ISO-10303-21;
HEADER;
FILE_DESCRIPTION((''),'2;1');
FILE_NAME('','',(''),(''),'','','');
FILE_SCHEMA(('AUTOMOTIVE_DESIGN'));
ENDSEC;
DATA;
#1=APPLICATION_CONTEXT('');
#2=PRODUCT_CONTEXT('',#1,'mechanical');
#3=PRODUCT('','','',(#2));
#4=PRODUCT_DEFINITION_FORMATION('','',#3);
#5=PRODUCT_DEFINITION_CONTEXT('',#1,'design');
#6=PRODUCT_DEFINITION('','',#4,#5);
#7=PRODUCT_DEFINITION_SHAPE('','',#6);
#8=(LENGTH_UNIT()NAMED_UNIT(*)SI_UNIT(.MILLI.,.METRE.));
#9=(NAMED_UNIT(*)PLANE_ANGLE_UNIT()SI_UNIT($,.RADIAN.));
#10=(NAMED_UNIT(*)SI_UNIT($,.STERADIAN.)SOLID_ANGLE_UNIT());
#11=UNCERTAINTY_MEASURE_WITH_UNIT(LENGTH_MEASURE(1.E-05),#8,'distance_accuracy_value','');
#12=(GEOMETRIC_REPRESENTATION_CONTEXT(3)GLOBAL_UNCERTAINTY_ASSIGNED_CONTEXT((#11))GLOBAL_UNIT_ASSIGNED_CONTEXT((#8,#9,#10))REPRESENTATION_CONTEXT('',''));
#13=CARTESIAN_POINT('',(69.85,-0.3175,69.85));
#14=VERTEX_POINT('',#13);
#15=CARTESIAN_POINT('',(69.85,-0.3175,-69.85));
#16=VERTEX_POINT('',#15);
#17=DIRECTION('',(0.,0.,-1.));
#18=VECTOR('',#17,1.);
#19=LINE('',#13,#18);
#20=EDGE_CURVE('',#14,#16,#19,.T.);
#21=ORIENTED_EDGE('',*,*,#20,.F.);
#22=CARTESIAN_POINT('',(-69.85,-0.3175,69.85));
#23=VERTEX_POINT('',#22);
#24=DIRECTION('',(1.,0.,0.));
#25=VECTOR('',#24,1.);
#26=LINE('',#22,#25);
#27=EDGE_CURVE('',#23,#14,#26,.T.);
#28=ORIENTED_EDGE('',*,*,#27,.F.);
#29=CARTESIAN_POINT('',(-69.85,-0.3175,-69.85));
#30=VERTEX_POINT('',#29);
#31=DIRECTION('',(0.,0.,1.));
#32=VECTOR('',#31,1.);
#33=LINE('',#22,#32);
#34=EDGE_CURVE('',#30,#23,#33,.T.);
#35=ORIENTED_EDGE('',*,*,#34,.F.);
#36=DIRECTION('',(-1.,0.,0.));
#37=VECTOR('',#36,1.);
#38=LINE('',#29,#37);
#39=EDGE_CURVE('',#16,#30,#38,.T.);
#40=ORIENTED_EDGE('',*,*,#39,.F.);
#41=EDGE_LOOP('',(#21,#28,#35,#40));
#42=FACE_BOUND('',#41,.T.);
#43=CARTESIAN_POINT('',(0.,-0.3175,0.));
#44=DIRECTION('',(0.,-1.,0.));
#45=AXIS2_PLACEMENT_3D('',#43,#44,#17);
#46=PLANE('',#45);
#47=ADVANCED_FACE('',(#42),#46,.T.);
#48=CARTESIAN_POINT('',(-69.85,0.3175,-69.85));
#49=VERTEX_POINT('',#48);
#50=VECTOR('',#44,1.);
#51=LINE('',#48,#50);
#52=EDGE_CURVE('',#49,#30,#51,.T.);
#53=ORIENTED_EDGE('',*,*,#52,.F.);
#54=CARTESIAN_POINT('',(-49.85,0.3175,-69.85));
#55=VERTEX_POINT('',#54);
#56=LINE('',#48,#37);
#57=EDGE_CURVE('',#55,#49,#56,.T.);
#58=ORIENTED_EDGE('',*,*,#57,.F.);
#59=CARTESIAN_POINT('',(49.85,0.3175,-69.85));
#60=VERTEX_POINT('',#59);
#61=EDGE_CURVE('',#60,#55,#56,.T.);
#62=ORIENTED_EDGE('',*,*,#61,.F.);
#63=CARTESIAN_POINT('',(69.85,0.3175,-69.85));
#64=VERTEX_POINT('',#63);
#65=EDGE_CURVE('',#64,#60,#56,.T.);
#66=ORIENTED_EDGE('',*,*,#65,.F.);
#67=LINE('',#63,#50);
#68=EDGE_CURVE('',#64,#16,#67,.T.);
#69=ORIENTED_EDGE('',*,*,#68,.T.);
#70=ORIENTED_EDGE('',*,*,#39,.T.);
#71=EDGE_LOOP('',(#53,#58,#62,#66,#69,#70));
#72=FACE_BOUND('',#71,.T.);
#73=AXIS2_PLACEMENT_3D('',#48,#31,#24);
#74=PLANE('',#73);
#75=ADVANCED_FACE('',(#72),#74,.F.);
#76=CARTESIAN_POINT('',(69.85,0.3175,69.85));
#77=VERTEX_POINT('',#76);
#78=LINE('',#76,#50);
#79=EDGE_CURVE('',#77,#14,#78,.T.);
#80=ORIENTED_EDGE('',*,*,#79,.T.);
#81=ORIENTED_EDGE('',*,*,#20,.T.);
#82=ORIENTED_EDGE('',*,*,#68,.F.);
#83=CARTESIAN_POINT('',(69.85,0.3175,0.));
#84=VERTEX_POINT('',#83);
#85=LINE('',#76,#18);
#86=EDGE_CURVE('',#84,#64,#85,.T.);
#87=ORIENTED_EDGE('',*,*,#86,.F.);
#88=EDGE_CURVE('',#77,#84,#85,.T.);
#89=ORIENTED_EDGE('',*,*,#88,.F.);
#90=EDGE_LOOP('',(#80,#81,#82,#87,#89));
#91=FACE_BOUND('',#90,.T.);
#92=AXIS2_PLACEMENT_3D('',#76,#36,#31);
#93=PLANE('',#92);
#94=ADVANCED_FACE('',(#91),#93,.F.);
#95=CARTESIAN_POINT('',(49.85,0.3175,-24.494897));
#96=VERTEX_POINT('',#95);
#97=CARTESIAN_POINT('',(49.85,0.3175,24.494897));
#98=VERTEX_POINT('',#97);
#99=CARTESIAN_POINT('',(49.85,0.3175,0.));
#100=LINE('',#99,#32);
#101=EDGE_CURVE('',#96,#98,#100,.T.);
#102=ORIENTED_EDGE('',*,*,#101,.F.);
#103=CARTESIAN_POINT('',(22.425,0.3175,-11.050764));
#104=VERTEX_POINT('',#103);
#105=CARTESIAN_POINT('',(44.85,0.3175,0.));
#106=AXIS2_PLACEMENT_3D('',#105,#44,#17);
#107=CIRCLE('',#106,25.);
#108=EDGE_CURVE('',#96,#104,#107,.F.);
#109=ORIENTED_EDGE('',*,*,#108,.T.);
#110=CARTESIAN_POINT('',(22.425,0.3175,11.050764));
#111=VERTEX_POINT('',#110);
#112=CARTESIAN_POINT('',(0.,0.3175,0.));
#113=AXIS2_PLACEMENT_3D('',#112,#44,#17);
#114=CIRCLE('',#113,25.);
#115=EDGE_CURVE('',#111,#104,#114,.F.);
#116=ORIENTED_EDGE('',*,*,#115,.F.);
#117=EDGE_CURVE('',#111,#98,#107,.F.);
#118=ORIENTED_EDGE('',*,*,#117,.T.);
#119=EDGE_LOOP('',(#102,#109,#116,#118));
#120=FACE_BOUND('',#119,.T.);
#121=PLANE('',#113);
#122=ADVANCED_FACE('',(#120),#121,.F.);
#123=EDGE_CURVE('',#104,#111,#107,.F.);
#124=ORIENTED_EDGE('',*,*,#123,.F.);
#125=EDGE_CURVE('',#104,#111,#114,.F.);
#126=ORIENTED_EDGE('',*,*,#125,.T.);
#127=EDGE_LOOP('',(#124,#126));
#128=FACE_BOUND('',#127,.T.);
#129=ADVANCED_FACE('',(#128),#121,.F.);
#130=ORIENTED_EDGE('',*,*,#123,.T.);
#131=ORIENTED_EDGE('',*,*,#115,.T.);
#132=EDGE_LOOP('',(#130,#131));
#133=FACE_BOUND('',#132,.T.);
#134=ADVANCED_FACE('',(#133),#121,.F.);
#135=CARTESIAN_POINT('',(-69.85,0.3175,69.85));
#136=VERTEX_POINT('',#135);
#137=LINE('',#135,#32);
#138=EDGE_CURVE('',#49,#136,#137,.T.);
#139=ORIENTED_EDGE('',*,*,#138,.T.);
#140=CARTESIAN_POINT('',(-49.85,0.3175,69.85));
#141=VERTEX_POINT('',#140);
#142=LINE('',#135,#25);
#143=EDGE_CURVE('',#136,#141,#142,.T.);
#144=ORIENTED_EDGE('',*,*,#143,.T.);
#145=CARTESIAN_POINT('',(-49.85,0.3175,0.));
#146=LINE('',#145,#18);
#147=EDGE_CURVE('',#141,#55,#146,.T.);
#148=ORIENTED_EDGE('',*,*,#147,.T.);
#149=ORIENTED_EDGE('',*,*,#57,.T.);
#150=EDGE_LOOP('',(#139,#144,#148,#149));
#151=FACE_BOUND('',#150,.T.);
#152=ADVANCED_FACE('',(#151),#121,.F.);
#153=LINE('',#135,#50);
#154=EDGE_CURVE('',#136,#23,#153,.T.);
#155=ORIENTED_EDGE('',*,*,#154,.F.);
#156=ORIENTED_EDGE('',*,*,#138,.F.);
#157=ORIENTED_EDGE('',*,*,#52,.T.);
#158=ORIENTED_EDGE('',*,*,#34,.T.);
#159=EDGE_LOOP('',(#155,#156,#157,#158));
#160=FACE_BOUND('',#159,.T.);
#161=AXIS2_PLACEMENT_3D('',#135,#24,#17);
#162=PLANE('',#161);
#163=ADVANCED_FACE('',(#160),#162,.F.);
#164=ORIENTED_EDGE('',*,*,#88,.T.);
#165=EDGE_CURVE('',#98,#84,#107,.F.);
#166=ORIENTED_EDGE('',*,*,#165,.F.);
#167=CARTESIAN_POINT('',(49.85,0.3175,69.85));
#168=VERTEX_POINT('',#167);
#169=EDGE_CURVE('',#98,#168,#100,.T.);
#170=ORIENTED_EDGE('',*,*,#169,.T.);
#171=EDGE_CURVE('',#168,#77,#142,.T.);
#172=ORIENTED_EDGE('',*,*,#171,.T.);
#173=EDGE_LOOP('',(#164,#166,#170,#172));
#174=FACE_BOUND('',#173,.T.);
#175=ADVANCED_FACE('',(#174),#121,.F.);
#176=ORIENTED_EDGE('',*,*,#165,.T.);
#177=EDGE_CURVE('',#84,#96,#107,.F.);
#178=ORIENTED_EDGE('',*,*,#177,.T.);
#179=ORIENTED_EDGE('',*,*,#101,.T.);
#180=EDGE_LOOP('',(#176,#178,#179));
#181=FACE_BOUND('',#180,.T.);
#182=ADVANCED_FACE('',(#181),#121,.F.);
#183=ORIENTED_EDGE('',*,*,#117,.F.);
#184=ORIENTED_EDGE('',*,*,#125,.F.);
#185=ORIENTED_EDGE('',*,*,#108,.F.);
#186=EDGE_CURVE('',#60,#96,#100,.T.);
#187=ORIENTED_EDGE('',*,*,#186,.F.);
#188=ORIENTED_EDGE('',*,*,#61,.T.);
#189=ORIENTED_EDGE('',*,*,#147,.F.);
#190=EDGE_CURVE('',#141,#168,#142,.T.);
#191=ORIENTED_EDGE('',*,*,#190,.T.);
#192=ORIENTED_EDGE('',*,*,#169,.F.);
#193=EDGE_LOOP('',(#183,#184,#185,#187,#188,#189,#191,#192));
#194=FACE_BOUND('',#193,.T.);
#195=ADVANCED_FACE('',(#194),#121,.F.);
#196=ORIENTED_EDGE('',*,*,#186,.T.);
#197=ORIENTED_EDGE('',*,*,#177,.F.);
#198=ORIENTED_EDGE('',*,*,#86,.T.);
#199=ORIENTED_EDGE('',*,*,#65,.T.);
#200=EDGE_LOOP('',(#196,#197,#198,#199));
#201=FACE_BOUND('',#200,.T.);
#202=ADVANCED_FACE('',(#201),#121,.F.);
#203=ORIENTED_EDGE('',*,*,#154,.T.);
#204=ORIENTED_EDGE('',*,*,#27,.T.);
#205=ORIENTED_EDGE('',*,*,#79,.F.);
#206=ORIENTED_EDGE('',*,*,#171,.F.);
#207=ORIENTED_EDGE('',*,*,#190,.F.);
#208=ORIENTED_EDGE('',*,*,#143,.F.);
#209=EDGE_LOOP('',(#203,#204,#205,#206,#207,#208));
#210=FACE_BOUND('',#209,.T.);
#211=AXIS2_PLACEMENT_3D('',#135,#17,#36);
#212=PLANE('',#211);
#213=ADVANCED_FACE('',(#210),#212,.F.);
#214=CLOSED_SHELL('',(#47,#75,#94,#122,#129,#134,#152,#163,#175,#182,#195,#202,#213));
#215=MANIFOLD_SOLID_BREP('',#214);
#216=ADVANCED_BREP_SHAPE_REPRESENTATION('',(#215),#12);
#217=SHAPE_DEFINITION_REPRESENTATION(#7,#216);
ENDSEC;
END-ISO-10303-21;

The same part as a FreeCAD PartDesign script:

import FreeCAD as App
import Part
import Sketcher

V = App.Vector
Q = App.Units.Quantity


def add_polygon(sketch, points):
    """Adds a closed chain of lines whose ends are joined by coincident constraints."""
    first, n = sketch.GeometryCount, len(points)
    for a, b in zip(points, points[1:] + points[:1]):
        sketch.addGeometry(Part.LineSegment(App.Vector(*a, 0), App.Vector(*b, 0)), False)
    for i in range(n):
        sketch.addConstraint(Sketcher.Constraint("Coincident", first + i, 2, first + (i + 1) % n, 1))

doc = App.newDocument("Part")
body = doc.addObject("PartDesign::Body", "Body")

sketch1 = body.newObject("Sketcher::SketchObject", "Sketch")
sketch1.AttachmentSupport = (doc.getObject("XZ_Plane"), [""])
sketch1.MapMode = "FlatFace"
add_polygon(sketch1, [(-70, -70), (-70, 70), (70, 70), (70, -70)])
sketch1.addConstraint([
    Sketcher.Constraint("Vertical", 0),
    Sketcher.Constraint("Horizontal", 1),
    Sketcher.Constraint("Vertical", 2),
    Sketcher.Constraint("Horizontal", 3),
    Sketcher.Constraint("Symmetric", 0, 2, 2, 2, -1, 1),
    Sketcher.Constraint("Equal", 3, 0),
    Sketcher.Constraint("DistanceX", 1, 1, 1, 2, Q("5.5 in")),
])
pad1 = body.newObject("PartDesign::Pad", "Pad")
pad1.Profile = sketch1
pad1.Length = Q("0.025 in")
pad1.Midplane = True

doc.recompute()
